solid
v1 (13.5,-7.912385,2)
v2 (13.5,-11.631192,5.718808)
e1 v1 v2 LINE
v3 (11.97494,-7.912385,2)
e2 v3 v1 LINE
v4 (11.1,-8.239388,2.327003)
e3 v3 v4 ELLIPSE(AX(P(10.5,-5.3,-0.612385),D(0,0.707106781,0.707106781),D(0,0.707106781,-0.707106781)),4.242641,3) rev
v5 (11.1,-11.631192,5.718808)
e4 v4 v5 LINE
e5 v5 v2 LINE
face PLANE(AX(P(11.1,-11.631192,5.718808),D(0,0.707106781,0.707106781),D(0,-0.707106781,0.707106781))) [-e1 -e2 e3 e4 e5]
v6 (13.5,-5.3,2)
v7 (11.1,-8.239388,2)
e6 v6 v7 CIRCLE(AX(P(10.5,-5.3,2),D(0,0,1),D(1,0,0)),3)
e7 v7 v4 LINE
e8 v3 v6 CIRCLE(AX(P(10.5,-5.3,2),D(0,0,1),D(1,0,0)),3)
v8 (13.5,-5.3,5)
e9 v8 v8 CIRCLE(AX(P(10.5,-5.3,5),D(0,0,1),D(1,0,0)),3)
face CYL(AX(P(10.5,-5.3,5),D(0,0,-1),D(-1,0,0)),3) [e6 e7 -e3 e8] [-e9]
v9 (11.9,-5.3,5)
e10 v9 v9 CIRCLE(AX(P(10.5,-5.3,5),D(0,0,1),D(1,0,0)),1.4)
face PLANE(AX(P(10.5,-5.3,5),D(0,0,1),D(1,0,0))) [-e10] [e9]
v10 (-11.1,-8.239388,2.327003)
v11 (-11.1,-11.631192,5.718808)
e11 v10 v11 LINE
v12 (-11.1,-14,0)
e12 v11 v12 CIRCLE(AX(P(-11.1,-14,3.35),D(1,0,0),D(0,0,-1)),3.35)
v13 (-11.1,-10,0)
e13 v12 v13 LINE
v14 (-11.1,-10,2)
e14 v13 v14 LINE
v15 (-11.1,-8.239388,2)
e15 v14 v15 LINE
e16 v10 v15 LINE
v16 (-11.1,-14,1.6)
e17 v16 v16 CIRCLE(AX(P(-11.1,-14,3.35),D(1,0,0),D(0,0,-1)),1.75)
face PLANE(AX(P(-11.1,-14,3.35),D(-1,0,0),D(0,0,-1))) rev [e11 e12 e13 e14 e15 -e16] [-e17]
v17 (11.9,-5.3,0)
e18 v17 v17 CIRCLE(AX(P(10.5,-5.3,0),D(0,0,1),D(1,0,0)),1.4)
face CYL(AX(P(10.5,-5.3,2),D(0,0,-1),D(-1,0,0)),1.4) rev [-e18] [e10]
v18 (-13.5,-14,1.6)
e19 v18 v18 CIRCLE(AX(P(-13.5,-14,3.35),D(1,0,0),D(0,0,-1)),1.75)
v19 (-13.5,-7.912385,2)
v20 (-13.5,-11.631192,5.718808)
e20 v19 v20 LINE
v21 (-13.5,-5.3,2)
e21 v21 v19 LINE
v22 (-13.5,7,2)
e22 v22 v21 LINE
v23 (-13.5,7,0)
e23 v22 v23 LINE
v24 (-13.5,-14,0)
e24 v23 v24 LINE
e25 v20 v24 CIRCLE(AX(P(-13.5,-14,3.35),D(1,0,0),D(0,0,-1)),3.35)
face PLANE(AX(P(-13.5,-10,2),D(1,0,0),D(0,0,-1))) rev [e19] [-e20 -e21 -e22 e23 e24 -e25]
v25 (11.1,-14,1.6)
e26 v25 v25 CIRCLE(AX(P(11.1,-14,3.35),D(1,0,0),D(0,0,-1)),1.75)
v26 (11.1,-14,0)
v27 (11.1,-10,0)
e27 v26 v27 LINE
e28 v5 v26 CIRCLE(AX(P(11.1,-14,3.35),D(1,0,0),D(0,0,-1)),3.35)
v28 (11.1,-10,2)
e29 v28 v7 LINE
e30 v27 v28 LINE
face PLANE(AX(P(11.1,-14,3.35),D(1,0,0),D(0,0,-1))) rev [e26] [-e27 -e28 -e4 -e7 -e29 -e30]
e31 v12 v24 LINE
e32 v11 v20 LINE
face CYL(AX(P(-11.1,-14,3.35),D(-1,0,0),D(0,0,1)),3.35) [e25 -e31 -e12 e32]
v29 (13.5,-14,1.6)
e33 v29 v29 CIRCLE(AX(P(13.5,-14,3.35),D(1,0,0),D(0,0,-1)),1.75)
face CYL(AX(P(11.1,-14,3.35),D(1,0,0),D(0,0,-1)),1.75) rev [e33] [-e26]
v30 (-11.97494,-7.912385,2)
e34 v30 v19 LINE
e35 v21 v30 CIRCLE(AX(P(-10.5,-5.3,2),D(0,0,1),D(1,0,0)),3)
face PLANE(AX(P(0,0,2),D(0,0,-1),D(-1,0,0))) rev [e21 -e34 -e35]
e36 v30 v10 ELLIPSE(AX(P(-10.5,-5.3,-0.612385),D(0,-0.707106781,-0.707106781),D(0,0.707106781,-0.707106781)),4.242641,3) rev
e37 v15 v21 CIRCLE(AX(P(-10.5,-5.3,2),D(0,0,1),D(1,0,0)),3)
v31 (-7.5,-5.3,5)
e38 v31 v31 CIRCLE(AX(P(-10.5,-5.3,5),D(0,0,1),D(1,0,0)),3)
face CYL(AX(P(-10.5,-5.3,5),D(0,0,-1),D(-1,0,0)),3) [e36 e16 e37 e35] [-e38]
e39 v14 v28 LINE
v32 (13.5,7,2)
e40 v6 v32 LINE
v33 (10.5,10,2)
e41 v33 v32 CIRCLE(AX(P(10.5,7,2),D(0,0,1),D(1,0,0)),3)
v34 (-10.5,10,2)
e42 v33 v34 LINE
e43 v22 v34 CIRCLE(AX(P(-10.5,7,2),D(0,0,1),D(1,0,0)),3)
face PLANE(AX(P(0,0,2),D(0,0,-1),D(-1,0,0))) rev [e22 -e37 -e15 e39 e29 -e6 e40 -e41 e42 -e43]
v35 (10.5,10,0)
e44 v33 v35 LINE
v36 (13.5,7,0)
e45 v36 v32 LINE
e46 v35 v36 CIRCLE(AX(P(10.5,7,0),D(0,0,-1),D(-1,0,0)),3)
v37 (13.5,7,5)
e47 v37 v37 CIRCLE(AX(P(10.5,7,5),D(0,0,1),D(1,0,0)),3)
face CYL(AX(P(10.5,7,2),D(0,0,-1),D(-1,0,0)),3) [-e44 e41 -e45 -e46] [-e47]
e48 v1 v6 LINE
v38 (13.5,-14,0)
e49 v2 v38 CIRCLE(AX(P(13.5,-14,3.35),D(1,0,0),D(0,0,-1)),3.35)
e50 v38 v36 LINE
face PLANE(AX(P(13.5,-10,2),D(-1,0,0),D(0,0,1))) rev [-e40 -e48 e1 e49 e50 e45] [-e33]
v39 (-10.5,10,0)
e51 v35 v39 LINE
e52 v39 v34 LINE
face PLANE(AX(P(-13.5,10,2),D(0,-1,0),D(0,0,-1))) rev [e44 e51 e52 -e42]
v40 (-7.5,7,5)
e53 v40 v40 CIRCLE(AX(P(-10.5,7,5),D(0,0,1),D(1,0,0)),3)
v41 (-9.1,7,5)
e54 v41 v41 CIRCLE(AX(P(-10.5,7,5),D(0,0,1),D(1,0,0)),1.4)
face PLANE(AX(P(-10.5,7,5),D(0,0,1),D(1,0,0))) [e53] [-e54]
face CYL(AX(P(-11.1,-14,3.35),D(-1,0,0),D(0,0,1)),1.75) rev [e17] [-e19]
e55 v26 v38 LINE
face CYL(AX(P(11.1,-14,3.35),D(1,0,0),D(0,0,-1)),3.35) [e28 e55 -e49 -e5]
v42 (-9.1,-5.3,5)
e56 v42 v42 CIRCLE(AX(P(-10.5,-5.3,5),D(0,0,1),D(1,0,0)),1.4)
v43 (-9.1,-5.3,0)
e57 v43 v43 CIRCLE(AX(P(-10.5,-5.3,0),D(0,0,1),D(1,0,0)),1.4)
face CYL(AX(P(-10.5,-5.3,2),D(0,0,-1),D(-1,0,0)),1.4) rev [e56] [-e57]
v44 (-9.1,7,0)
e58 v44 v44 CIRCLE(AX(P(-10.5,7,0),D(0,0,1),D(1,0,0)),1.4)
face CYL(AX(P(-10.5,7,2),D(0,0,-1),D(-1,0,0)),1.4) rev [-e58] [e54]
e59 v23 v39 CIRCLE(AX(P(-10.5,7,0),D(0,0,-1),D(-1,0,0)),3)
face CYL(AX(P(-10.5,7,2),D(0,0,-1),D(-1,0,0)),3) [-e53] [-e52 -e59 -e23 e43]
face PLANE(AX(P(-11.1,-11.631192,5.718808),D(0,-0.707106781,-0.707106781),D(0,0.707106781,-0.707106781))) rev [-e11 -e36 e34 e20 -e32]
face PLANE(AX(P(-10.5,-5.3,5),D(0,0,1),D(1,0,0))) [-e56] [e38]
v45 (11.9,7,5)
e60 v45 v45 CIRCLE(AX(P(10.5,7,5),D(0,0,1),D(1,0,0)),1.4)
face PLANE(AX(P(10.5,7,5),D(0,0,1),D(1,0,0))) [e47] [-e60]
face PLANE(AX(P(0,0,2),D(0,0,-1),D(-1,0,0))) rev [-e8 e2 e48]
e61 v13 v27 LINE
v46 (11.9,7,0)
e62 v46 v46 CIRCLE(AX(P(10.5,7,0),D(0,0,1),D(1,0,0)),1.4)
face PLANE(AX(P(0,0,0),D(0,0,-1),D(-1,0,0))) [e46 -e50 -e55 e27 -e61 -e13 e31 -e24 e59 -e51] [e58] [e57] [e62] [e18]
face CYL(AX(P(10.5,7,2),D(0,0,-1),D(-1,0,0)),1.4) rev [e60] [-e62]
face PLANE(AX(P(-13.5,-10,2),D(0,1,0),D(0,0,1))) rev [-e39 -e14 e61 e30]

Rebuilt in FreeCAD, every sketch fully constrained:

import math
import FreeCAD as App
import Part
import Sketcher
from FreeCAD import Vector
Q = App.Units.Quantity


def edges_at(feature, points):
    """Names of the edges that pass closest to the given points."""
    edges = feature.Shape.Edges
    near = lambda p: min(range(len(edges)), key=lambda i: edges[i].distToShape(Part.Vertex(*p))[0])
    return sorted({f"Edge{near(p) + 1}" for p in points})


def add_polygon(sketch, points):
    """Adds a closed chain of lines whose ends are joined by coincident constraints."""
    first, n = sketch.GeometryCount, len(points)
    for a, b in zip(points, points[1:] + points[:1]):
        sketch.addGeometry(Part.LineSegment(App.Vector(*a, 0), App.Vector(*b, 0)), False)
    for i in range(n):
        sketch.addConstraint(Sketcher.Constraint("Coincident", first + i, 2, first + (i + 1) % n, 1))

doc = App.newDocument("Part")
body = doc.addObject("PartDesign::Body", "Body")

sketch1 = body.newObject("Sketcher::SketchObject", "Sketch")
sketch1.AttachmentSupport = (doc.getObject("XY_Plane"), [""])
sketch1.MapMode = "FlatFace"
add_polygon(sketch1, [(-13.5, 10), (-13.5, -10), (13.5, -10), (13.5, 10)])
sketch1.addGeometry(Part.Circle(Vector(-10.5, -5.3, 0), Vector(0, 0, 1), 1.4), False)
sketch1.addGeometry(Part.Circle(Vector(10.5, -5.3, 0), Vector(0, 0, 1), 1.4), False)
sketch1.addGeometry(Part.Circle(Vector(-10.5, 7, 0), Vector(0, 0, 1), 1.4), False)
sketch1.addGeometry(Part.Circle(Vector(10.5, 7, 0), Vector(0, 0, 1), 1.4), False)
sketch1.addConstraint([
    Sketcher.Constraint("Vertical", 0),
    Sketcher.Constraint("Horizontal", 1),
    Sketcher.Constraint("Vertical", 2),
    Sketcher.Constraint("Horizontal", 3),
    Sketcher.Constraint("Equal", 4, 5),
    Sketcher.Constraint("Equal", 5, 6),
    Sketcher.Constraint("Equal", 6, 7),
    Sketcher.Constraint("Symmetric", 0, 2, 2, 2, -1, 1),
    Sketcher.Constraint("Symmetric", 4, 3, 5, 3, -2),
    Sketcher.Constraint("Symmetric", 6, 3, 7, 3, -2),
    Sketcher.Constraint("Vertical", 4, 3, 6, 3),
    Sketcher.Constraint("Diameter", 4, Q("2.8 mm")),
    Sketcher.Constraint("DistanceX", 1, 1, 1, 2, Q("27 mm")),
    Sketcher.Constraint("DistanceY", 0, 2, 0, 1, Q("20 mm")),
    Sketcher.Constraint("DistanceY", -1, 1, 6, 3, Q("7 mm")),
    Sketcher.Constraint("DistanceX", 4, 3, 5, 3, Q("21 mm")),
    Sketcher.Constraint("DistanceY", 4, 3, -1, 1, Q("5.3 mm")),
])
pad1 = body.newObject("PartDesign::Pad", "Pad")
pad1.Profile = sketch1
pad1.Length = 2
doc.recompute()

fillet = body.newObject("PartDesign::Fillet", "Fillet")
fillet.Base = (pad1, edges_at(pad1, [(-13.5, 10, 1), (13.5, 10, 1)]))
fillet.Radius = 3

sketch2 = body.newObject("Sketcher::SketchObject", "Sketch001")
sketch2.AttachmentSupport = (doc.getObject("YZ_Plane"), [""])
sketch2.MapMode = "FlatFace"
sketch2.AttachmentOffset = App.Placement(Vector(0, 0, 13.5), App.Rotation())
sketch2.addGeometry([
    Part.LineSegment(Vector(-14, 0, 0), Vector(-10, 0, 0)),
    Part.LineSegment(Vector(-10, 0, 0), Vector(-10, 2, 0)),
    Part.LineSegment(Vector(-10, 2, 0), Vector(-7.912385, 2, 0)),
    Part.LineSegment(Vector(-7.912385, 2, 0), Vector(-11.631192, 5.718808, 0)),
    Part.ArcOfCircle(Part.Circle(Vector(-14, 3.35, 0), Vector(0, 0, 1), 3.35), math.radians(45), math.radians(270)),
    Part.Circle(Vector(-14, 3.35, 0), Vector(0, 0, 1), 1.75),
], False)
sketch2.addConstraint([
    Sketcher.Constraint("Coincident", 0, 2, 1, 1),
    Sketcher.Constraint("Coincident", 1, 2, 2, 1),
    Sketcher.Constraint("Coincident", 2, 2, 3, 1),
    Sketcher.Constraint("Tangent", 3, 2, 4, 1),
    Sketcher.Constraint("Tangent", 4, 2, 0, 1),
    Sketcher.Constraint("Horizontal", 0),
    Sketcher.Constraint("Vertical", 1),
    Sketcher.Constraint("Horizontal", 2),
    Sketcher.Constraint("Coincident", 5, 3, 4, 3),
    Sketcher.Constraint("PointOnObject", 0, 2, -1),
    Sketcher.Constraint("Diameter", 5, Q("3.5 mm")),
    Sketcher.Constraint("DistanceX", 0, 1, 0, 2, Q("4 mm")),
    Sketcher.Constraint("DistanceY", 1, 1, 1, 2, Q("2 mm")),
    Sketcher.Constraint("Angle", 3, Q("135 deg")),
    Sketcher.Constraint("Radius", 4, Q("3.35 mm")),
    Sketcher.Constraint("DistanceX", 4, 3, -1, 1, Q("14 mm")),
])
pad2 = body.newObject("PartDesign::Pad", "Pad001")
pad2.Profile = sketch2
pad2.Length = 2.4
pad2.Reversed = True
doc.recompute()

mirrored = body.newObject("PartDesign::Mirrored", "Mirrored")
mirrored.Originals = [pad2]
mirrored.MirrorPlane = (doc.getObject("YZ_Plane"), [""])
body.Tip = mirrored

sketch3 = body.newObject("Sketcher::SketchObject", "Sketch002")
sketch3.AttachmentSupport = (doc.getObject("XY_Plane"), [""])
sketch3.MapMode = "FlatFace"
sketch3.AttachmentOffset = App.Placement(Vector(0, 0, 2), App.Rotation())
sketch3.addGeometry([
    Part.Circle(Vector(-10.5, 7, 0), Vector(0, 0, 1), 3),
    Part.Circle(Vector(-10.5, 7, 0), Vector(0, 0, 1), 1.4),
    Part.Circle(Vector(-10.5, -5.3, 0), Vector(0, 0, 1), 3),
    Part.Circle(Vector(-10.5, -5.3, 0), Vector(0, 0, 1), 1.4),
    Part.Circle(Vector(10.5, -5.3, 0), Vector(0, 0, 1), 3),
    Part.Circle(Vector(10.5, -5.3, 0), Vector(0, 0, 1), 1.4),
    Part.Circle(Vector(10.5, 7, 0), Vector(0, 0, 1), 3),
    Part.Circle(Vector(10.5, 7, 0), Vector(0, 0, 1), 1.4),
], False)
sketch3.addConstraint([
    Sketcher.Constraint("Coincident", 1, 3, 0, 3),
    Sketcher.Constraint("Coincident", 3, 3, 2, 3),
    Sketcher.Constraint("Coincident", 5, 3, 4, 3),
    Sketcher.Constraint("Coincident", 7, 3, 6, 3),
    Sketcher.Constraint("Equal", 0, 2),
    Sketcher.Constraint("Equal", 1, 3),
    Sketcher.Constraint("Equal", 2, 4),
    Sketcher.Constraint("Equal", 3, 5),
    Sketcher.Constraint("Equal", 4, 6),
    Sketcher.Constraint("Equal", 5, 7),
    Sketcher.Constraint("Symmetric", 2, 3, 4, 3, -2),
    Sketcher.Constraint("Symmetric", 0, 3, 6, 3, -2),
    Sketcher.Constraint("Vertical", 1, 3, 2, 3),
    Sketcher.Constraint("Diameter", 0, Q("6 mm")),
    Sketcher.Constraint("Diameter", 1, Q("2.8 mm")),
    Sketcher.Constraint("DistanceY", -1, 1, 0, 3, Q("7 mm")),
    Sketcher.Constraint("DistanceX", 2, 3, 4, 3, Q("21 mm")),
    Sketcher.Constraint("DistanceY", 2, 3, -1, 1, Q("5.3 mm")),
])
pad3 = body.newObject("PartDesign::Pad", "Pad002")
pad3.Profile = sketch3
pad3.Length = 3

doc.recompute()
